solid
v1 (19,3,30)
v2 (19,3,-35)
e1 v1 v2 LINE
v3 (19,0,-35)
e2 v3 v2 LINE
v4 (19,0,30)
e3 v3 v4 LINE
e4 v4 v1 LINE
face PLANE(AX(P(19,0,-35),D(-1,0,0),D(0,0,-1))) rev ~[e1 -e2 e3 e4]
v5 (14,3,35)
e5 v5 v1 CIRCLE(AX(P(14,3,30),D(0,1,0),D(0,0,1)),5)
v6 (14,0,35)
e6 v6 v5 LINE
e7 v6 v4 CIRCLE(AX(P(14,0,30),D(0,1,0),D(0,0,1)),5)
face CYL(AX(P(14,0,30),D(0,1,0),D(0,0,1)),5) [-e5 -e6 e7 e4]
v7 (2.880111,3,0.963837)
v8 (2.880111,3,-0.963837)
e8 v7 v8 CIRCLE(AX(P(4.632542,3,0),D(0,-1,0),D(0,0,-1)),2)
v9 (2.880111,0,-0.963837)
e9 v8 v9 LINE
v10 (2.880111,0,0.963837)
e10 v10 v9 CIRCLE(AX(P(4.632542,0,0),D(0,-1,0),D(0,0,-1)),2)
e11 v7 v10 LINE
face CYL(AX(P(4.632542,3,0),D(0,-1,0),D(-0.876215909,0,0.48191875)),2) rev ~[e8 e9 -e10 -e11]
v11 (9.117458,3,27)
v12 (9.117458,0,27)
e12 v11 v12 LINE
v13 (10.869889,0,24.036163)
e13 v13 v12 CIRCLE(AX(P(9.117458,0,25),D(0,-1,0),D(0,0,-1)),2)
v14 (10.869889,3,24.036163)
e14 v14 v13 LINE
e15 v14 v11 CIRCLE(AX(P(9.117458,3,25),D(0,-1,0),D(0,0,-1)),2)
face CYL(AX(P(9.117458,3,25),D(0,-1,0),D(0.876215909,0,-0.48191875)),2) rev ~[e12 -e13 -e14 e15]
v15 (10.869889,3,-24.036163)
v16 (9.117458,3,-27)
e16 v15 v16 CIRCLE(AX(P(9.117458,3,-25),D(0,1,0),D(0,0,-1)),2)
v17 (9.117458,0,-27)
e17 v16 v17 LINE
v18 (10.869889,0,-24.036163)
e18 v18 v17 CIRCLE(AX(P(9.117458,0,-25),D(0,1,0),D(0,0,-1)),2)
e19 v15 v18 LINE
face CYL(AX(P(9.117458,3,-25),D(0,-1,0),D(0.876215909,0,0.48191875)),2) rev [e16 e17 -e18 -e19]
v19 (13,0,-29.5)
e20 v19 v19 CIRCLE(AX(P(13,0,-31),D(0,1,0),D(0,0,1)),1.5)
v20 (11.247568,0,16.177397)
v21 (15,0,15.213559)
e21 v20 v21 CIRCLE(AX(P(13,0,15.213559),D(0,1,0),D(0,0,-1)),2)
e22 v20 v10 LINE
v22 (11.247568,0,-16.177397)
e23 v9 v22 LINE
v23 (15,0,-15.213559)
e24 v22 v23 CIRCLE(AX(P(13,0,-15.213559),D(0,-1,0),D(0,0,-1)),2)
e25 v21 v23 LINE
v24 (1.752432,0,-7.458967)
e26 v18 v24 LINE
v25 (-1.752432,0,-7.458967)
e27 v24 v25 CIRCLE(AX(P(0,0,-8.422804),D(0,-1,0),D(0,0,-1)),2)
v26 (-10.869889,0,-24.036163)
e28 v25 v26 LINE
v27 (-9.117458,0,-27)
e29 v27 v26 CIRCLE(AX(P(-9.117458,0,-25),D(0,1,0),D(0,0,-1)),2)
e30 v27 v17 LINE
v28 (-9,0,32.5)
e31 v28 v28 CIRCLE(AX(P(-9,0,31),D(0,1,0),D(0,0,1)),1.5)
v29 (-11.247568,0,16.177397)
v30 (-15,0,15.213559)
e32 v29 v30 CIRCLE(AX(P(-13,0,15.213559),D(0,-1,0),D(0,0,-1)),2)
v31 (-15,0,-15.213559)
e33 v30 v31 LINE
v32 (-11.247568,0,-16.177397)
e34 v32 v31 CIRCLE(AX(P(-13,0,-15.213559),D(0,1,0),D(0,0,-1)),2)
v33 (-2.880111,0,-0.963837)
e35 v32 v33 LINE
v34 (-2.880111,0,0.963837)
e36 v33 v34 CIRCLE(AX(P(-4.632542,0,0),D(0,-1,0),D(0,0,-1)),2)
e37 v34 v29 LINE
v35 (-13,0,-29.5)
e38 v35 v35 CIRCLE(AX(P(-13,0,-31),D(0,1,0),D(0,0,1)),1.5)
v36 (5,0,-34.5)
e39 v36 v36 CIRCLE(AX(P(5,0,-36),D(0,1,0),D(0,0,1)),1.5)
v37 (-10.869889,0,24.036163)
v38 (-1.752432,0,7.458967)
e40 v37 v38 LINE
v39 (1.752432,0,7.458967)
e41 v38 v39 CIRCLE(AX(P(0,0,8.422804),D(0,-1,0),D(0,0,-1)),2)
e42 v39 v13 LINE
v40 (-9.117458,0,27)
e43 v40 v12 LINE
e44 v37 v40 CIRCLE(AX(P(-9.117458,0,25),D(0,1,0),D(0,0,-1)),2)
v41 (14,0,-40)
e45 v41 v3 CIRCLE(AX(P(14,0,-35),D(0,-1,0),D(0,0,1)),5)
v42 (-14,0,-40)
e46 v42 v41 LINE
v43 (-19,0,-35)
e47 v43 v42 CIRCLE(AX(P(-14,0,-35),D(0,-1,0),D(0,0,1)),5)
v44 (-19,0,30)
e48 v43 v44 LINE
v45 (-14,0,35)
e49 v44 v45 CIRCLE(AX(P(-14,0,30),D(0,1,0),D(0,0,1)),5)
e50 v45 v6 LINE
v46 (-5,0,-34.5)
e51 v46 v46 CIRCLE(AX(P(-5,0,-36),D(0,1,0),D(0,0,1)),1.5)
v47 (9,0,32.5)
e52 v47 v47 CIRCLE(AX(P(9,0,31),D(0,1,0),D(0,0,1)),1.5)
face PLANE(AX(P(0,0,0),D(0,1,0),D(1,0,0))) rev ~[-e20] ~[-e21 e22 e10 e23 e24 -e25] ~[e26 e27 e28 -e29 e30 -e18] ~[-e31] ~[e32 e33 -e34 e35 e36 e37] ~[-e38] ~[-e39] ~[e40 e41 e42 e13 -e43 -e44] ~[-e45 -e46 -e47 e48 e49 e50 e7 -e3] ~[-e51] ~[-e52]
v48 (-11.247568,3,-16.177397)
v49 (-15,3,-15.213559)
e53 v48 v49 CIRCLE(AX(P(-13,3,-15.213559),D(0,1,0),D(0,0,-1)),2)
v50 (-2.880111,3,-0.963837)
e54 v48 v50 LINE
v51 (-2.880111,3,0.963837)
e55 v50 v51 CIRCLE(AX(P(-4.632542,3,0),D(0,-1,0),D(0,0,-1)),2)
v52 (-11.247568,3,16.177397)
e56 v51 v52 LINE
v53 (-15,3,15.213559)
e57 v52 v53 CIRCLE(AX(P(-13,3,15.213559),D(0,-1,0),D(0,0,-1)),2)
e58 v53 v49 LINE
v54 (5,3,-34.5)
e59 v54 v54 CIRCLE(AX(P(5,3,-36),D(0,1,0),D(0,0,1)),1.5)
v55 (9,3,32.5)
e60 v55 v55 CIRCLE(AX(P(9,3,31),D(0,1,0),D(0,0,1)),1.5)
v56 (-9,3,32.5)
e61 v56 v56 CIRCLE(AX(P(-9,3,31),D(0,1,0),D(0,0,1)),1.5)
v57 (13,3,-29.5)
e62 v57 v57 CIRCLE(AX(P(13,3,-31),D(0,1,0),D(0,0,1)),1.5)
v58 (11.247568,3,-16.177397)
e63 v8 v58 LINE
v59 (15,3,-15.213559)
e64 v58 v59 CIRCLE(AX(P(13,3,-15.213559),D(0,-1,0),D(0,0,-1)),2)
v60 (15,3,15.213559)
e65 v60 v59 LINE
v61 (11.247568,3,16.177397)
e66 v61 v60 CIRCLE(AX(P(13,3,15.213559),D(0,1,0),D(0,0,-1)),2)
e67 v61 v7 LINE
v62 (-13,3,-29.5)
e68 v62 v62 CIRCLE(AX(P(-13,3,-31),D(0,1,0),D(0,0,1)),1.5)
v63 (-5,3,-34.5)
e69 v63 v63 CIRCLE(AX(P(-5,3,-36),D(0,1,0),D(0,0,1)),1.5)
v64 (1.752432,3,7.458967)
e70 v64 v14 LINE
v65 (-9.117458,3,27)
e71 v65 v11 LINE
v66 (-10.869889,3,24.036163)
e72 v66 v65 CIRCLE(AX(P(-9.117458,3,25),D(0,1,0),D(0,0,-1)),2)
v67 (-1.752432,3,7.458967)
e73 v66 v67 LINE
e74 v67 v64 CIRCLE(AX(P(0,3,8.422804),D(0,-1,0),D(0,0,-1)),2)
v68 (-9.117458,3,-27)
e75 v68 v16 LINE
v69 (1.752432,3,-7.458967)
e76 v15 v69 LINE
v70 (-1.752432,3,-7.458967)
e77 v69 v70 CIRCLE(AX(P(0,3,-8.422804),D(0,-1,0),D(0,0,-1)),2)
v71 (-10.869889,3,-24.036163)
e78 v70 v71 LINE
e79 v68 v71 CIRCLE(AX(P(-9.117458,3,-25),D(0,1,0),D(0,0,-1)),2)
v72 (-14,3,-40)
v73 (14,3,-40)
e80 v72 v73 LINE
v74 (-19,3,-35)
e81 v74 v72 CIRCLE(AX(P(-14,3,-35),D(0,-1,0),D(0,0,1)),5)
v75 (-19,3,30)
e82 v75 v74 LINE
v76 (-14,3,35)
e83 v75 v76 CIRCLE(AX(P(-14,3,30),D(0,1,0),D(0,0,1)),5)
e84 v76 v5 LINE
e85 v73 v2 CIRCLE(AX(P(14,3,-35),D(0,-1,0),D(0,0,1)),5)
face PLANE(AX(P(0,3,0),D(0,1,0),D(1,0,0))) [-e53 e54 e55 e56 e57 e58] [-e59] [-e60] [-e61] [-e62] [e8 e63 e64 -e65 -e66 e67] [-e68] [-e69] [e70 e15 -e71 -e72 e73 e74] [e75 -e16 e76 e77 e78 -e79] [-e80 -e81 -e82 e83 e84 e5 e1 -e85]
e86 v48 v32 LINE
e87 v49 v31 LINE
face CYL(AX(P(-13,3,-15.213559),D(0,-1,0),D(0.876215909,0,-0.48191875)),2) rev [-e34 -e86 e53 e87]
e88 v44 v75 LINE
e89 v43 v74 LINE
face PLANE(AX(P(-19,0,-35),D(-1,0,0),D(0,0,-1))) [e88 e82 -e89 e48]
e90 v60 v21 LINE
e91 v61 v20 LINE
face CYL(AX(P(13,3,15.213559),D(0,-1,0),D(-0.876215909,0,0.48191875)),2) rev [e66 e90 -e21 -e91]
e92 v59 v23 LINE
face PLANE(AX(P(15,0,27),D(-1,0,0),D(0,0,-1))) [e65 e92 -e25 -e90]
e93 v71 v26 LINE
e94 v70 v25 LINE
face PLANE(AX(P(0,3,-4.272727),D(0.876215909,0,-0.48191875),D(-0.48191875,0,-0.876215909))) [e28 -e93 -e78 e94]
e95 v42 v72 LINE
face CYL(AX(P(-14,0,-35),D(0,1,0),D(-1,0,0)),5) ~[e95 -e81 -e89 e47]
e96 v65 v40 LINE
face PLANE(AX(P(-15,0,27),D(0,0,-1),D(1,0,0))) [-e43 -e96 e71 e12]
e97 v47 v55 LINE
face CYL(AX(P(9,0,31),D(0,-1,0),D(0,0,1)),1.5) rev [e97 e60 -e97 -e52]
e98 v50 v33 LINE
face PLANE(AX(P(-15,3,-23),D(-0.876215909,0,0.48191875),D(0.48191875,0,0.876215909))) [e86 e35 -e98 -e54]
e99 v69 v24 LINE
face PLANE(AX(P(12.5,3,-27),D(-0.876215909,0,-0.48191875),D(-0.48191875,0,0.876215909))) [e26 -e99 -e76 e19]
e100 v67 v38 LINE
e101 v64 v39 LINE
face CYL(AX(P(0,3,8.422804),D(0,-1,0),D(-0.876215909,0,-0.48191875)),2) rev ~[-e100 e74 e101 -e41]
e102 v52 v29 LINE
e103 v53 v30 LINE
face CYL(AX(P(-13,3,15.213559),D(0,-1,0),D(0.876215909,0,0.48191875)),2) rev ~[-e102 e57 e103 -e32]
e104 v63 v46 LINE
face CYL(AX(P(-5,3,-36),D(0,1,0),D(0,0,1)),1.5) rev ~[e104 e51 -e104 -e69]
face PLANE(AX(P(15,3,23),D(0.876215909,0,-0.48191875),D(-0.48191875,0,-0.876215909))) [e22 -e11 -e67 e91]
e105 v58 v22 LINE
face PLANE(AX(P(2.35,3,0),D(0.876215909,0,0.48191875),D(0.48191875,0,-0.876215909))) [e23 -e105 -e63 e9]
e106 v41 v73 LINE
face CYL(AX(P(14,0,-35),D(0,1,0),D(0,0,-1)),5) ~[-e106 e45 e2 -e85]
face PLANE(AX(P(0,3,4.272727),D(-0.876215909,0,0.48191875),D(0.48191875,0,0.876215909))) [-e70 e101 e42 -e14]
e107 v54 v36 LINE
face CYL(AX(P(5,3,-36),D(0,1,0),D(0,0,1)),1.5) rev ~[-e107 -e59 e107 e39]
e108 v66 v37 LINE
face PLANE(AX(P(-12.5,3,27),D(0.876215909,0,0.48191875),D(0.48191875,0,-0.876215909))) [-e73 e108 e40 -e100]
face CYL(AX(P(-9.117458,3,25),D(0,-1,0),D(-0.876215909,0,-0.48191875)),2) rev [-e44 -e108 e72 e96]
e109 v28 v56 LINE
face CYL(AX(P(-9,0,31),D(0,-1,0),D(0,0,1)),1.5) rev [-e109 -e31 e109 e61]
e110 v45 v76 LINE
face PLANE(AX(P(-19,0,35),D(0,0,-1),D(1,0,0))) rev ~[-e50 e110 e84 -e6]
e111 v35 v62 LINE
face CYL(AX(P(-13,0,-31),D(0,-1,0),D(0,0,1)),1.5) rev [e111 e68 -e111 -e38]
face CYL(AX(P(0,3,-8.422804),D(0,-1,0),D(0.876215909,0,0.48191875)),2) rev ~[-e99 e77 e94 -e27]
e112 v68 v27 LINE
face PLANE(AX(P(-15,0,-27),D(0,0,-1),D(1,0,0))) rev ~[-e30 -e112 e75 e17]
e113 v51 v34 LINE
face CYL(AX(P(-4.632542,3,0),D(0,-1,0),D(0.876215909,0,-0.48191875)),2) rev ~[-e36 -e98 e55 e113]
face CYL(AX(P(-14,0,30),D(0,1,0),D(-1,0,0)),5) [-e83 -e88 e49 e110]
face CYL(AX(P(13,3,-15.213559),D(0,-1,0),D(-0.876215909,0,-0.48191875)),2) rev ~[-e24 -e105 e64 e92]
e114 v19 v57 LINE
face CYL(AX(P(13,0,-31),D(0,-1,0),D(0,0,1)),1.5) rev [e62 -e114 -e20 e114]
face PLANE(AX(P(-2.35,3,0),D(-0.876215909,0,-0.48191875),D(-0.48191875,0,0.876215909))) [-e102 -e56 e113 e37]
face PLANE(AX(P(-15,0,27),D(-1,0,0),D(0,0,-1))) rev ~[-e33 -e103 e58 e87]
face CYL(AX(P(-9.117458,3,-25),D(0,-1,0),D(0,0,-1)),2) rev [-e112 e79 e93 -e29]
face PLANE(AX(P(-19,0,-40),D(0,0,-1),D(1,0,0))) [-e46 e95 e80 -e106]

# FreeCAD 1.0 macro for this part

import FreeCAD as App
import Part
import Sketcher

V = App.Vector


def edges_at(feature, points):
    """Names of the edges that pass closest to the given points."""
    edges = feature.Shape.Edges
    near = lambda p: min(range(len(edges)), key=lambda i: edges[i].distToShape(Part.Vertex(*p))[0])
    return sorted({f"Edge{near(p) + 1}" for p in points})

doc = App.newDocument("Part")
body = doc.addObject("PartDesign::Body", "Body")

# Sketch on XZ plane
sketch1 = body.newObject("Sketcher::SketchObject", "Sketch")
sketch1.AttachmentSupport = (doc.getObject("XZ_Plane"), [""])
sketch1.MapMode = "FlatFace"
sketch1.addGeometry([
    Part.LineSegment(V(-19, 35, 0), V(19, 35, 0)),  # 0
    Part.LineSegment(V(19, 35, 0), V(19, -40, 0)),  # 1
    Part.LineSegment(V(19, -40, 0), V(-19, -40, 0)),  # 2
    Part.LineSegment(V(-19, -40, 0), V(-19, 35, 0)),  # 3
    Part.Circle(V(-9, 31, 0), V(0, 0, 1), 1.5),  # 4
    Part.Circle(V(9, 31, 0), V(0, 0, 1), 1.5),  # 5
    Part.Circle(V(-13, -31, 0), V(0, 0, 1), 1.5),  # 6
    Part.LineSegment(V(15, 27, 0), V(-15, 27, 0)),  # 7
    Part.LineSegment(V(-15, 27, 0), V(-15, -27, 0)),  # 8
    Part.LineSegment(V(-15, -27, 0), V(15, -27, 0)),  # 9
    Part.LineSegment(V(15, -27, 0), V(15, 27, 0)),  # 10
    Part.Circle(V(13, -31, 0), V(0, 0, 1), 1.5),  # 11
], False)
sketch1.addConstraint([
    Sketcher.Constraint("Coincident", 0, 2, 1, 1),
    Sketcher.Constraint("Coincident", 1, 2, 2, 1),
    Sketcher.Constraint("Coincident", 2, 2, 3, 1),
    Sketcher.Constraint("Coincident", 3, 2, 0, 1),
    Sketcher.Constraint("Coincident", 7, 2, 8, 1),
    Sketcher.Constraint("Coincident", 8, 2, 9, 1),
    Sketcher.Constraint("Coincident", 9, 2, 10, 1),
    Sketcher.Constraint("Coincident", 10, 2, 7, 1),
    Sketcher.Constraint("Horizontal", 0),
    Sketcher.Constraint("Vertical", 1),
    Sketcher.Constraint("Horizontal", 2),
    Sketcher.Constraint("Vertical", 3),
    Sketcher.Constraint("Horizontal", 7),
    Sketcher.Constraint("Vertical", 8),
    Sketcher.Constraint("Horizontal", 9),
    Sketcher.Constraint("Vertical", 10),
    Sketcher.Constraint("Equal", 4, 5),
    Sketcher.Constraint("Equal", 5, 6),
    Sketcher.Constraint("Equal", 6, 11),
    Sketcher.Constraint("Symmetric", 7, 2, 9, 2, -1, 1),
    Sketcher.Constraint("Symmetric", 4, 3, 5, 3, -2),
    Sketcher.Constraint("Symmetric", 6, 3, 11, 3, -2),
    Sketcher.Constraint("Diameter", 4, 3.0),
    Sketcher.Constraint("DistanceX", 0, 1, 0, 2, 38.0),
    Sketcher.Constraint("DistanceX", 7, 2, 7, 1, 30.0),
    Sketcher.Constraint("DistanceY", 1, 2, 1, 1, 75.0),
    Sketcher.Constraint("DistanceY", 8, 2, 8, 1, 54.0),
    Sketcher.Constraint("DistanceX", 4, 3, -1, 1, 9.0),
    Sketcher.Constraint("DistanceY", -1, 1, 4, 3, 31.0),
    Sketcher.Constraint("DistanceX", 6, 3, -1, 1, 13.0),
    Sketcher.Constraint("DistanceY", 6, 3, -1, 1, 31.0),
    Sketcher.Constraint("DistanceX", -1, 1, 0, 2, 19.0),
    Sketcher.Constraint("DistanceY", -1, 1, 0, 2, 35.0),
])
pad1 = body.newObject("PartDesign::Pad", "Pad")
pad1.Profile = sketch1
pad1.Length = 3
pad1.Reversed = True

# Sketch on XZ plane
sketch2 = body.newObject("Sketcher::SketchObject", "Sketch001")
sketch2.AttachmentSupport = (doc.getObject("XZ_Plane"), [""])
sketch2.MapMode = "FlatFace"
sketch2.AttachmentOffset = App.Placement(V(0, 0, -3), App.Rotation())
sketch2.addGeometry([
    Part.LineSegment(V(15, -27, 0), V(12.5, -27, 0)),  # 0
    Part.LineSegment(V(12.5, -27, 0), V(0, -4.3, 0)),  # 1
    Part.LineSegment(V(0, -4.3, 0), V(-12.5, -27, 0)),  # 2
    Part.LineSegment(V(-12.5, -27, 0), V(-15, -27, 0)),  # 3
    Part.LineSegment(V(-15, -27, 0), V(-15, -23, 0)),  # 4
    Part.LineSegment(V(-15, -23, 0), V(-2.4, 0, 0)),  # 5
    Part.LineSegment(V(-2.4, 0, 0), V(-15, 23, 0)),  # 6
    Part.LineSegment(V(-15, 23, 0), V(-15, 27, 0)),  # 7
    Part.LineSegment(V(-15, 27, 0), V(-12.5, 27, 0)),  # 8
    Part.LineSegment(V(-12.5, 27, 0), V(0, 4.3, 0)),  # 9
    Part.LineSegment(V(0, 4.3, 0), V(12.5, 27, 0)),  # 10
    Part.LineSegment(V(12.5, 27, 0), V(15, 27, 0)),  # 11
    Part.LineSegment(V(15, 27, 0), V(15, 23, 0)),  # 12
    Part.LineSegment(V(15, 23, 0), V(2.4, 0, 0)),  # 13
    Part.LineSegment(V(2.4, 0, 0), V(15, -23, 0)),  # 14
    Part.LineSegment(V(15, -23, 0), V(15, -27, 0)),  # 15
], False)
sketch2.addConstraint([
    Sketcher.Constraint("Coincident", 0, 2, 1, 1),
    Sketcher.Constraint("Coincident", 1, 2, 2, 1),
    Sketcher.Constraint("Coincident", 2, 2, 3, 1),
    Sketcher.Constraint("Coincident", 3, 2, 4, 1),
    Sketcher.Constraint("Coincident", 4, 2, 5, 1),
    Sketcher.Constraint("Coincident", 5, 2, 6, 1),
    Sketcher.Constraint("Coincident", 6, 2, 7, 1),
    Sketcher.Constraint("Coincident", 7, 2, 8, 1),
    Sketcher.Constraint("Coincident", 8, 2, 9, 1),
    Sketcher.Constraint("Coincident", 9, 2, 10, 1),
    Sketcher.Constraint("Coincident", 10, 2, 11, 1),
    Sketcher.Constraint("Coincident", 11, 2, 12, 1),
    Sketcher.Constraint("Coincident", 12, 2, 13, 1),
    Sketcher.Constraint("Coincident", 13, 2, 14, 1),
    Sketcher.Constraint("Coincident", 14, 2, 15, 1),
    Sketcher.Constraint("Coincident", 15, 2, 0, 1),
    Sketcher.Constraint("Horizontal", 0),
    Sketcher.Constraint("Horizontal", 3),
    Sketcher.Constraint("Vertical", 4),
    Sketcher.Constraint("Vertical", 7),
    Sketcher.Constraint("Horizontal", 8),
    Sketcher.Constraint("Horizontal", 11),
    Sketcher.Constraint("Vertical", 12),
    Sketcher.Constraint("Vertical", 15),
    Sketcher.Constraint("Symmetric", 0, 2, 8, 2, -1, 1),
    Sketcher.Constraint("Symmetric", 1, 2, 9, 2, -1, 1),
    Sketcher.Constraint("Symmetric", 2, 2, 10, 2, -1, 1),
    Sketcher.Constraint("Symmetric", 4, 2, 12, 2, -1, 1),
    Sketcher.Constraint("Symmetric", 5, 2, 13, 2, -1, 1),
    Sketcher.Constraint("Symmetric", 6, 2, 14, 2, -1, 1),
    Sketcher.Constraint("Symmetric", 0, 2, 2, 2, -2),
    Sketcher.Constraint("Symmetric", 6, 2, 12, 2, -2),
    Sketcher.Constraint("PointOnObject", 1, 2, -2),
    Sketcher.Constraint("PointOnObject", 5, 2, -1),
    Sketcher.Constraint("Parallel", 2, 5),
    Sketcher.Constraint("DistanceY", 4, 1, 4, 2, 4.0),
    Sketcher.Constraint("DistanceX", 0, 2, 0, 1, 2.5),
    Sketcher.Constraint("DistanceY", 0, 2, -1, 1, 27.0),
    Sketcher.Constraint("DistanceX", 3, 2, -1, 1, 15.0),
    Sketcher.Constraint("DistanceX", 5, 2, 13, 2, 4.7),
])
pad2 = body.newObject("PartDesign::Pad", "Pad001")
pad2.Profile = sketch2
pad2.Length = 3
doc.recompute()

fillet = body.newObject("PartDesign::Fillet", "Fillet")
fillet.Base = (pad2, edges_at(pad2, [
    (-2.35, 1.5, 0),
    (-15, 1.5, -23),
    (-12.5, 1.5, -27),
    (0, 1.5, -4.273),
    (12.5, 1.5, -27),
    (15, 1.5, -23),
    (2.35, 1.5, 0),
    (15, 1.5, 23),
    (12.5, 1.5, 27),
    (0, 1.5, 4.273),
    (-12.5, 1.5, 27),
    (-15, 1.5, 23),
]))
fillet.Radius = 2

# Sketch on XZ plane
sketch3 = body.newObject("Sketcher::SketchObject", "Sketch002")
sketch3.AttachmentSupport = (doc.getObject("XZ_Plane"), [""])
sketch3.MapMode = "FlatFace"
sketch3.AttachmentOffset = App.Placement(V(0, 0, -3), App.Rotation())
sketch3.addGeometry([
    Part.Circle(V(-5, -36, 0), V(0, 0, 1), 1.5),
    Part.Circle(V(5, -36, 0), V(0, 0, 1), 1.5),
], False)
sketch3.addConstraint([
    Sketcher.Constraint("Equal", 0, 1),
    Sketcher.Constraint("Symmetric", 0, 3, 1, 3, -2),
    Sketcher.Constraint("Diameter", 0, 3.0),
    Sketcher.Constraint("DistanceX", 0, 3, -1, 1, 5.0),
    Sketcher.Constraint("DistanceY", 0, 3, -1, 1, 36.0),
])
pocket1 = body.newObject("PartDesign::Pocket", "Pocket")
pocket1.Profile = sketch3
pocket1.Length = 10
pocket1.Reversed = True
doc.recompute()

fillet2 = body.newObject("PartDesign::Fillet", "Fillet001")
fillet2.Base = (pocket1, edges_at(pocket1, [
    (-19, 1.5, 35),
    (-19, 1.5, -40),
    (19, 1.5, -40),
    (19, 1.5, 35),
]))
fillet2.Radius = 5

doc.recompute()
